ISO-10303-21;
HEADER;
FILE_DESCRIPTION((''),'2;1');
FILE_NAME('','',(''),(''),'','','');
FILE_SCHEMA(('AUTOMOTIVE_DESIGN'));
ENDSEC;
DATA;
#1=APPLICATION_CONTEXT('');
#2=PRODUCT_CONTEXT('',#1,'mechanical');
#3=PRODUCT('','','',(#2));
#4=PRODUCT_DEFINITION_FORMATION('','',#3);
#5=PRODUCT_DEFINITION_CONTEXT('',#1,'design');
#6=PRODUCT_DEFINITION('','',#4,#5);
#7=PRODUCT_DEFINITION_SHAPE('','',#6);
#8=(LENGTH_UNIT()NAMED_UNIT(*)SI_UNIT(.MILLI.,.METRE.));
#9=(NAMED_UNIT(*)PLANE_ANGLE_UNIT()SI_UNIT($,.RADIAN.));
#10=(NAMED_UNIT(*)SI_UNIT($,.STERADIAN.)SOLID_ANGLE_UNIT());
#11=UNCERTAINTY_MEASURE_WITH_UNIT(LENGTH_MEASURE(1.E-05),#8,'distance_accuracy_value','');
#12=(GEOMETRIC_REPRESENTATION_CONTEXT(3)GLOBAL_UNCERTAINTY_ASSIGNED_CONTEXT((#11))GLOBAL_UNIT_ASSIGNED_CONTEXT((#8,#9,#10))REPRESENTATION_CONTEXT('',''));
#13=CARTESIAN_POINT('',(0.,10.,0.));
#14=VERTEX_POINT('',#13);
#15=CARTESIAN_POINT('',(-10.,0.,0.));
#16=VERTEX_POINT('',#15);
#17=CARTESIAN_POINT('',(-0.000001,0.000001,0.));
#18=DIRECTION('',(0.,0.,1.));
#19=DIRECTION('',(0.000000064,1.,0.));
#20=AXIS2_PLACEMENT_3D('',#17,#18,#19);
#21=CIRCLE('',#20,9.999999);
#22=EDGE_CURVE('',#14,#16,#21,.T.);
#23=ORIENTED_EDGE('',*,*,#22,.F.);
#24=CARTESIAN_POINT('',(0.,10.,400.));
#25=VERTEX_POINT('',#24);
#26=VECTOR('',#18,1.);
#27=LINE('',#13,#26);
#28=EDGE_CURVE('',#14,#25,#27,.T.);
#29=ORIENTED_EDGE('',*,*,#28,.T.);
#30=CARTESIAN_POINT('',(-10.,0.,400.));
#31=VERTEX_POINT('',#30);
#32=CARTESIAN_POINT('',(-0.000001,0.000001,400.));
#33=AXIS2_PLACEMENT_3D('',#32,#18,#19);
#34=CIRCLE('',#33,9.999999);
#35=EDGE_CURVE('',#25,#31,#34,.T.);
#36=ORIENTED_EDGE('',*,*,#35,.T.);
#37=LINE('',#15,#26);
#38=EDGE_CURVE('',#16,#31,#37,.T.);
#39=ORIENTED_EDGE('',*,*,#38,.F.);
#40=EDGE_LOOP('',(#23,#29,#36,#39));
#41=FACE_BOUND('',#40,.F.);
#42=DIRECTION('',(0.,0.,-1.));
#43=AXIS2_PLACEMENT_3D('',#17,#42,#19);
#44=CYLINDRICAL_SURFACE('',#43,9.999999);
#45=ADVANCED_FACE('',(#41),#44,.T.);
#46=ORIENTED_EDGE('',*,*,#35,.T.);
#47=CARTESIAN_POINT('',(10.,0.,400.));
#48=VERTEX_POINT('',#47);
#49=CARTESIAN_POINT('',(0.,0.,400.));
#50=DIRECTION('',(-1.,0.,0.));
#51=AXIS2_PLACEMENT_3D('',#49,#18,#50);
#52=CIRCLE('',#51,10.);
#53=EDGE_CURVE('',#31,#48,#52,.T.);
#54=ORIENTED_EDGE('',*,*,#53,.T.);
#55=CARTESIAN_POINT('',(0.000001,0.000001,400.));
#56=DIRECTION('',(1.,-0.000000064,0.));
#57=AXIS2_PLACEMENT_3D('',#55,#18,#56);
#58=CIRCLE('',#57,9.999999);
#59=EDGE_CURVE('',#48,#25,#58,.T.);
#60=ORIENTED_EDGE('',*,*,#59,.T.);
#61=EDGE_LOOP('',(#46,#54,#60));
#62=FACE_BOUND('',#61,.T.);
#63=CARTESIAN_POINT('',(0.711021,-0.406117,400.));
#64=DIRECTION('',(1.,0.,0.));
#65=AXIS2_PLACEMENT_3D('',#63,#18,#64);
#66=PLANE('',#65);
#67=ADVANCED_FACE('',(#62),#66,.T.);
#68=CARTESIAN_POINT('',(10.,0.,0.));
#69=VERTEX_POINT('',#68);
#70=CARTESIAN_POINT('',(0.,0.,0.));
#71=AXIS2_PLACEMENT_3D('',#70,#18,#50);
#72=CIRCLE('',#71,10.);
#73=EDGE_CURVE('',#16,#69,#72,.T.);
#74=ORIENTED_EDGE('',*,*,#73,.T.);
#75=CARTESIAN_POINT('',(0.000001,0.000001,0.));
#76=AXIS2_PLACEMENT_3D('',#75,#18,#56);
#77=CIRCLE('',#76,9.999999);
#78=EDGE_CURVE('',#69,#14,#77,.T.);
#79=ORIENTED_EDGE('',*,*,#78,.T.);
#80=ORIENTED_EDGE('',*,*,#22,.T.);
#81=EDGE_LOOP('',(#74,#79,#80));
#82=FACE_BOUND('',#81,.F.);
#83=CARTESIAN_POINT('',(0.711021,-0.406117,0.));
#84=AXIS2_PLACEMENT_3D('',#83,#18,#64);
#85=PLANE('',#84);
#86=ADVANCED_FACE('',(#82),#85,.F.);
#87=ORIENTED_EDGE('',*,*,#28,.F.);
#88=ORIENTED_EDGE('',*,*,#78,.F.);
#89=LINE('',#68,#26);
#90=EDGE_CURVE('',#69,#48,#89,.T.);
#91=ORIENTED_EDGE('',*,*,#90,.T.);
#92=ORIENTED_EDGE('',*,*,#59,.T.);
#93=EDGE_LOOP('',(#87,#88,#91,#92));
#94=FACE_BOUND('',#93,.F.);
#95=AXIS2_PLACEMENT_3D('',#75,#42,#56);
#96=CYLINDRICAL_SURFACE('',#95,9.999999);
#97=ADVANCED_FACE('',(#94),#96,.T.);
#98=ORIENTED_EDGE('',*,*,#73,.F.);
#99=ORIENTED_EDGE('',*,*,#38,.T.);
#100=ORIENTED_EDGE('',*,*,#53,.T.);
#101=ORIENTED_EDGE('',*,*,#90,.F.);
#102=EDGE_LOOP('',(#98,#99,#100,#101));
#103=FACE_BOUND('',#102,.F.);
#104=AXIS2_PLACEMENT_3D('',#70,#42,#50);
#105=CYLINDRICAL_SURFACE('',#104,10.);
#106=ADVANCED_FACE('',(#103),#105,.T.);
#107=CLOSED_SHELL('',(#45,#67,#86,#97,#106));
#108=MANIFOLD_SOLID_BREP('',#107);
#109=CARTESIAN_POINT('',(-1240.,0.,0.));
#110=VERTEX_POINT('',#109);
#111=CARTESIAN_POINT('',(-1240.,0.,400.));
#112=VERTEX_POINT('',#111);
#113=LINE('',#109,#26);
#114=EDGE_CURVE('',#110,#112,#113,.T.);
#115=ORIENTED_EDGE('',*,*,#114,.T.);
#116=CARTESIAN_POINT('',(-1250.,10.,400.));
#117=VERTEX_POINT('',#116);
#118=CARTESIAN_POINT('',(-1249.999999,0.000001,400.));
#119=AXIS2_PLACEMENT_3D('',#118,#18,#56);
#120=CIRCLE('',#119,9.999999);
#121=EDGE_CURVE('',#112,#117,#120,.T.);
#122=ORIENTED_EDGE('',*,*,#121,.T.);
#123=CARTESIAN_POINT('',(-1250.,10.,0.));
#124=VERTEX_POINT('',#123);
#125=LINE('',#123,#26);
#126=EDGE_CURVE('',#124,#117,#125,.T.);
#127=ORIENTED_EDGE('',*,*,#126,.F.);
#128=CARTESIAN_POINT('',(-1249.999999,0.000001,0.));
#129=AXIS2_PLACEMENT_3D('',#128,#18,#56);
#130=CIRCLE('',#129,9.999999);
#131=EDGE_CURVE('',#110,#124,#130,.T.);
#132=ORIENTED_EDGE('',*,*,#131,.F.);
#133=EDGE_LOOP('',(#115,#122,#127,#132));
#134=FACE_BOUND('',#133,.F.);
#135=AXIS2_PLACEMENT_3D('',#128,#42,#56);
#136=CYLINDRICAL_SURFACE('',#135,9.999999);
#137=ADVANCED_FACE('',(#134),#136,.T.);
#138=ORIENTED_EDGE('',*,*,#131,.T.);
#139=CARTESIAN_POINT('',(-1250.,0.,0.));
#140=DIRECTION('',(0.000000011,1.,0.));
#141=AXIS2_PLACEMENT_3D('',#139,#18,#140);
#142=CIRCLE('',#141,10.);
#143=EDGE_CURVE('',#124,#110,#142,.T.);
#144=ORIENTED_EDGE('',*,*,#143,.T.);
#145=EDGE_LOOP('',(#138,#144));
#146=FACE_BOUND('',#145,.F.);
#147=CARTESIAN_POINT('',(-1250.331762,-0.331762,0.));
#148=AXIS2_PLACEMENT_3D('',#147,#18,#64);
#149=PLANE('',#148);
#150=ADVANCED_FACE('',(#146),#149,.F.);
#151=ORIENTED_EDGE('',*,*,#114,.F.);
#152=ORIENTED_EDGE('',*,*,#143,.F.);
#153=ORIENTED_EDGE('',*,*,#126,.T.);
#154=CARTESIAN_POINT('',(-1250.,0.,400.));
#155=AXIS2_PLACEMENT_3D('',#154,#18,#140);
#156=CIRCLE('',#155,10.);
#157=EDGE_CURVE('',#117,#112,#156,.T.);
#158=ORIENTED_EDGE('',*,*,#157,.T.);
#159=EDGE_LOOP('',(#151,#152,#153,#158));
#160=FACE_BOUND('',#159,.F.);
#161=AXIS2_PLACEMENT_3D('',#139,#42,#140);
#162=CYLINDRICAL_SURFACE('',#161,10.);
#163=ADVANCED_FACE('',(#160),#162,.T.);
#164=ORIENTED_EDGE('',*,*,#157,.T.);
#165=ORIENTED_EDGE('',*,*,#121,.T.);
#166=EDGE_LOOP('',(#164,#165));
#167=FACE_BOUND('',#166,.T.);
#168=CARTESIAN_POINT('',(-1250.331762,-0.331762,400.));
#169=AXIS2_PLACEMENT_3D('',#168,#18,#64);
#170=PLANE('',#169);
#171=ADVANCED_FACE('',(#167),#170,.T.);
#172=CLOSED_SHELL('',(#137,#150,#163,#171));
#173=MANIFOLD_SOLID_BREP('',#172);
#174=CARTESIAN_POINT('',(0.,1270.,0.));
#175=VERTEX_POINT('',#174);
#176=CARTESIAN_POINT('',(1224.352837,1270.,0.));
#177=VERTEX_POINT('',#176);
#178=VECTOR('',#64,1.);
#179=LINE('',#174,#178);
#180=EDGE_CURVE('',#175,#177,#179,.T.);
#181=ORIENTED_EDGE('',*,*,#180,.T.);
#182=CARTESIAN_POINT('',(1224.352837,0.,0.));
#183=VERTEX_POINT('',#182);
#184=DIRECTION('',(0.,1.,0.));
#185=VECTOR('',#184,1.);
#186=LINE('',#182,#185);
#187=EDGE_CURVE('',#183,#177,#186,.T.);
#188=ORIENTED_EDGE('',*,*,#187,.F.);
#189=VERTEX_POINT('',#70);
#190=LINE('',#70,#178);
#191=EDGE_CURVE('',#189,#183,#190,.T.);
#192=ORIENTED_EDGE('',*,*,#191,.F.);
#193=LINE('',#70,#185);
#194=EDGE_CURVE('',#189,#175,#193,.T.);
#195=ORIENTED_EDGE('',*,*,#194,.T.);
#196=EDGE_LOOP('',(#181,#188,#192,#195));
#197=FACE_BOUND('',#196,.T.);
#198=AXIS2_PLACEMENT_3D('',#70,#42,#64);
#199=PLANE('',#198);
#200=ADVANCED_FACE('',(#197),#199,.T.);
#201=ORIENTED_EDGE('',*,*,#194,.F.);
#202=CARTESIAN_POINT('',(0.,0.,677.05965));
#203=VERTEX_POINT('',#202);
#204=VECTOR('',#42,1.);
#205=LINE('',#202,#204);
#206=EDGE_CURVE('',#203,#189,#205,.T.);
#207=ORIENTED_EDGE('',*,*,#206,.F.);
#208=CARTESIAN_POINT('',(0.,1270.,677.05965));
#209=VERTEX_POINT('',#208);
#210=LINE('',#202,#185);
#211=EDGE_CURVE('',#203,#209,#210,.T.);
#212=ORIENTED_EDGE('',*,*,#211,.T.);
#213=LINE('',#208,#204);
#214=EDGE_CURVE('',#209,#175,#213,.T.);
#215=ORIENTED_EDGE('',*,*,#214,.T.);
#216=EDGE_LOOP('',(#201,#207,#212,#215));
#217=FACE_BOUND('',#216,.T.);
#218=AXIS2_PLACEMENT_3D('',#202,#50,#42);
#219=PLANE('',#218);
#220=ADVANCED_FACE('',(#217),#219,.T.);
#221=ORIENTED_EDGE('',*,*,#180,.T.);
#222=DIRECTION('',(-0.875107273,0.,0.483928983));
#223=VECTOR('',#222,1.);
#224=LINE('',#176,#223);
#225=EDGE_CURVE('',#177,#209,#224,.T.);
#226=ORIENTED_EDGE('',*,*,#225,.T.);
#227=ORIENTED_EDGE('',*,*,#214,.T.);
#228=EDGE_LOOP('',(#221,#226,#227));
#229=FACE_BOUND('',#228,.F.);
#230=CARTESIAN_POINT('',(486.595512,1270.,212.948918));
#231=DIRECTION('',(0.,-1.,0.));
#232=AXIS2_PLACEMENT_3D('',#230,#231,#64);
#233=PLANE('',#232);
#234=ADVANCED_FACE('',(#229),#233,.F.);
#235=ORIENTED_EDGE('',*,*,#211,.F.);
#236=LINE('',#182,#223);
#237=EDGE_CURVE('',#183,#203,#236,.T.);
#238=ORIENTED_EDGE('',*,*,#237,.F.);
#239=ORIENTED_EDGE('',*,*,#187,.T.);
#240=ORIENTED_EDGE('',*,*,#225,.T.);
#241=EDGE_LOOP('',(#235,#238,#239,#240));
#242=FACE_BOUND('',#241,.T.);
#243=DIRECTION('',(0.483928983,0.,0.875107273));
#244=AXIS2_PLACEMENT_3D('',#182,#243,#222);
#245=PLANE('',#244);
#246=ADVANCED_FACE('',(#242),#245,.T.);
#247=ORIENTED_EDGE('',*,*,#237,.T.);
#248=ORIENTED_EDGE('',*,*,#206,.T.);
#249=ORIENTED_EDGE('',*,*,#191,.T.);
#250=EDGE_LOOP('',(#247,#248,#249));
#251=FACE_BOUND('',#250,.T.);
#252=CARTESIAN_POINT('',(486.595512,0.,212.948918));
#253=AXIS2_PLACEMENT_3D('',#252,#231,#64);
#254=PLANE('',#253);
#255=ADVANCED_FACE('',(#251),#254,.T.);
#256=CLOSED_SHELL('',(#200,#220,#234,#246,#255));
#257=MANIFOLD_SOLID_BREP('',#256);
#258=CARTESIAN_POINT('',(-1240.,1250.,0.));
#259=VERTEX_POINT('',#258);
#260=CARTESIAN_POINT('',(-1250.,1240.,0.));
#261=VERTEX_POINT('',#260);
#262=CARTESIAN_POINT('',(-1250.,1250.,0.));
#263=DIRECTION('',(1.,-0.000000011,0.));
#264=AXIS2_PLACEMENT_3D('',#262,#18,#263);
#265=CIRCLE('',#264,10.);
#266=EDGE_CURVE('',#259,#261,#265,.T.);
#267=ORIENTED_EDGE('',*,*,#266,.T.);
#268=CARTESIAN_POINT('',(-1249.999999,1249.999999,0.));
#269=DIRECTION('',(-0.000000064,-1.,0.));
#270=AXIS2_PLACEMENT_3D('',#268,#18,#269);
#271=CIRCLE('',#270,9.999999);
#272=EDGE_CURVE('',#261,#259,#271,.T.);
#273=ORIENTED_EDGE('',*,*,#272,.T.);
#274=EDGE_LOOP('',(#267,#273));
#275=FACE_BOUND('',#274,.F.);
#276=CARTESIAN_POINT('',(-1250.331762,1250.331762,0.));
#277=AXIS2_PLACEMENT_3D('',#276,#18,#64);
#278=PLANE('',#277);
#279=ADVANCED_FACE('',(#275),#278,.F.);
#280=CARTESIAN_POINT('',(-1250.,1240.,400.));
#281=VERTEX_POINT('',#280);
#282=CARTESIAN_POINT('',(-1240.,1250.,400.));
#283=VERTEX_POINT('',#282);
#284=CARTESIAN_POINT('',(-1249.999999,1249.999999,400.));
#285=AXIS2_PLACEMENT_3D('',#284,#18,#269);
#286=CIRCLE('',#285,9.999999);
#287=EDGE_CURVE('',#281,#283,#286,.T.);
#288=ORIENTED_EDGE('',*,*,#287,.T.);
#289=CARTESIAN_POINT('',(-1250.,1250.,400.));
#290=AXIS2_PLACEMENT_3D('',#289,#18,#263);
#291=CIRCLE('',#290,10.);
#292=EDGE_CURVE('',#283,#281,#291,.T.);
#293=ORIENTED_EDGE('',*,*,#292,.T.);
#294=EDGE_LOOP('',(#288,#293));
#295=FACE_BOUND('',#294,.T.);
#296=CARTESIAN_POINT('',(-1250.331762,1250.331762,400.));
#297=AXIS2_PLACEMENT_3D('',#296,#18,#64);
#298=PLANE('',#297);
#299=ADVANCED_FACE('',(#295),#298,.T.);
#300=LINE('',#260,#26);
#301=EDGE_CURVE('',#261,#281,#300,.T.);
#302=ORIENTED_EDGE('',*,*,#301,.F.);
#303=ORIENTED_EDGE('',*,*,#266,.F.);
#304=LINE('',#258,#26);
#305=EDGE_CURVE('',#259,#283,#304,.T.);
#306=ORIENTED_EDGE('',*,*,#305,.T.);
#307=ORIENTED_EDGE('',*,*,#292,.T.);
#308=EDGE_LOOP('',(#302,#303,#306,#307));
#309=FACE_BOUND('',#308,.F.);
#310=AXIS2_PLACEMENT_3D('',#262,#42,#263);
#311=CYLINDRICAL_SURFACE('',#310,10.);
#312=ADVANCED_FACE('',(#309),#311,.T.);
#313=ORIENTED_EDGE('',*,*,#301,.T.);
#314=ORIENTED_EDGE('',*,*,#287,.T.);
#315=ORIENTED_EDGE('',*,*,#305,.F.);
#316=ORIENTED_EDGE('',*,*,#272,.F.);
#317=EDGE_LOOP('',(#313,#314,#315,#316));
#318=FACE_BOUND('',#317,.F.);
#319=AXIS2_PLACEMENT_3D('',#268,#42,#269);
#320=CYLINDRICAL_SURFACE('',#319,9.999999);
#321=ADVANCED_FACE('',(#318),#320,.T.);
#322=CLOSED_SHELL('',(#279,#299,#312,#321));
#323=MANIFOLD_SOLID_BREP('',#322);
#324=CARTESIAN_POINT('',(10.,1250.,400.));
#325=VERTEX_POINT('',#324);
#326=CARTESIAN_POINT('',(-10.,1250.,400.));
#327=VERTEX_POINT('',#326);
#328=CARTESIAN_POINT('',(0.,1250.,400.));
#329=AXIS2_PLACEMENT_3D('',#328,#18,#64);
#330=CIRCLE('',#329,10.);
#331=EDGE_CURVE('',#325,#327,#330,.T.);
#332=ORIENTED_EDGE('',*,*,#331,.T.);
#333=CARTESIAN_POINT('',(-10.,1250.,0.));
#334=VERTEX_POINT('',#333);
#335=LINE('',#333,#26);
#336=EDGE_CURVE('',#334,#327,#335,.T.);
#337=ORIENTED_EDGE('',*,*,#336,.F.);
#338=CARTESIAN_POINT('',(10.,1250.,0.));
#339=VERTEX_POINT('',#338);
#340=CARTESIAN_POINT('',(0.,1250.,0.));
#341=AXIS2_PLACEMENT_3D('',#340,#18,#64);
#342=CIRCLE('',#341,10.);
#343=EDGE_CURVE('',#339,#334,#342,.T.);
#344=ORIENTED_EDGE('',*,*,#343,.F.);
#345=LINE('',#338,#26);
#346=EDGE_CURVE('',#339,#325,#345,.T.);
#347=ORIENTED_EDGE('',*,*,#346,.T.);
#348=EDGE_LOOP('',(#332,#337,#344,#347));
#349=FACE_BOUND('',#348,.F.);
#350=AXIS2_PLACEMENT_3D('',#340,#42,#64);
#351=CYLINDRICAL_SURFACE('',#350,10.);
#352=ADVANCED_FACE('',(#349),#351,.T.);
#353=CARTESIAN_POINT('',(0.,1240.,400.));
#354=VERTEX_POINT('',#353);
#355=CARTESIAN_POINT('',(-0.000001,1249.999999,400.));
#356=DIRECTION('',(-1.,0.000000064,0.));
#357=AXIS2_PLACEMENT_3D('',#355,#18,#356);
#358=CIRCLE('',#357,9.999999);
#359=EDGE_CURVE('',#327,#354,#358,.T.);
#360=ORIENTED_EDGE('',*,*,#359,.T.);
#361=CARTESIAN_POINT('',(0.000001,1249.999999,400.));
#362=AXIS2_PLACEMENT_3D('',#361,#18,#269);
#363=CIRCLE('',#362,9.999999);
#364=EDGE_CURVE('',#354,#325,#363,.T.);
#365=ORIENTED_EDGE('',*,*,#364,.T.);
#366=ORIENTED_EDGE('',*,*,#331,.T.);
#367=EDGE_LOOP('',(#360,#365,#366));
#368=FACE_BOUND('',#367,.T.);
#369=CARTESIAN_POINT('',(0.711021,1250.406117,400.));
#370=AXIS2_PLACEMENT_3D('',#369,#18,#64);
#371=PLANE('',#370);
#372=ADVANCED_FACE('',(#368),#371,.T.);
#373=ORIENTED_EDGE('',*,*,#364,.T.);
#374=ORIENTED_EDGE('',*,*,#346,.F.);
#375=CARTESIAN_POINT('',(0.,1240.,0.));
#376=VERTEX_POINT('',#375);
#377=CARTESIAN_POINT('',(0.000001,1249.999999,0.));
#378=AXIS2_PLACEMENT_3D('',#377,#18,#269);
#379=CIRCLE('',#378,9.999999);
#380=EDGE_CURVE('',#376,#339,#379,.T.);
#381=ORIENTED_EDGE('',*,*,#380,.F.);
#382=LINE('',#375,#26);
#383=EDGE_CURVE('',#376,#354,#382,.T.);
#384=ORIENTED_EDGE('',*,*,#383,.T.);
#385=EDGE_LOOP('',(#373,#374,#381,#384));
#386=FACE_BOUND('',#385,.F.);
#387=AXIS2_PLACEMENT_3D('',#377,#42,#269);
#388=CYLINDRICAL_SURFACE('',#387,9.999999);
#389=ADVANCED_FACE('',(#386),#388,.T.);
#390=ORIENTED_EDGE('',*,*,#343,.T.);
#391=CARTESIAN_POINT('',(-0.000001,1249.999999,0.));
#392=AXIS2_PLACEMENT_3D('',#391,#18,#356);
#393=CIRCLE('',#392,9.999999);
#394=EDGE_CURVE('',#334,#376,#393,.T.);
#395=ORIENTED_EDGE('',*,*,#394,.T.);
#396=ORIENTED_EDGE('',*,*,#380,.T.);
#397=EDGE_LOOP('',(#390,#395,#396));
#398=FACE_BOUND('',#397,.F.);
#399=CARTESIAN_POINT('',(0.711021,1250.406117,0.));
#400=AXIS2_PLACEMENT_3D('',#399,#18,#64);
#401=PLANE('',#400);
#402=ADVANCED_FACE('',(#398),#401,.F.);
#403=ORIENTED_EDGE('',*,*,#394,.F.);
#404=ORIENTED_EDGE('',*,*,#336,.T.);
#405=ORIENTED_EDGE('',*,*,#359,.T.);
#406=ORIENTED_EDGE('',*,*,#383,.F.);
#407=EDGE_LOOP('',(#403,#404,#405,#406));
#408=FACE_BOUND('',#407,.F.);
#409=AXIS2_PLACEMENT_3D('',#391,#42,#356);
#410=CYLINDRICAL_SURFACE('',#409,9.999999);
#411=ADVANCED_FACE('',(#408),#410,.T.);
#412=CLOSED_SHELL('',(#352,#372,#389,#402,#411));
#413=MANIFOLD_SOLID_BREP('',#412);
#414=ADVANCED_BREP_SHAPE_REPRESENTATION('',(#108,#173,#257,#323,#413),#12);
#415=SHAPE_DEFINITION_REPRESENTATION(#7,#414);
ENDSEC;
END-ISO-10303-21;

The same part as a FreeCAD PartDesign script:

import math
import FreeCAD as App
import Part
import Sketcher

V = App.Vector


def add_polygon(sketch, points):
    """Adds a closed chain of lines whose ends are joined by coincident constraints."""
    first, n = sketch.GeometryCount, len(points)
    for a, b in zip(points, points[1:] + points[:1]):
        sketch.addGeometry(Part.LineSegment(App.Vector(*a, 0), App.Vector(*b, 0)), False)
    for i in range(n):
        sketch.addConstraint(Sketcher.Constraint("Coincident", first + i, 2, first + (i + 1) % n, 1))

doc = App.newDocument("Part")
params = doc.addObject("Spreadsheet::Sheet", "Params")
for row, (alias, value) in enumerate([
    ("sketch1_radius", "9.999999 mm"),
    ("pad1_length", "400 mm"),
    ("pad2_length", "1270 mm"),
], start=1):
    params.set(f"A{row}", alias)
    params.set(f"B{row}", "=" + value)
    params.setAlias(f"B{row}", alias)

body = doc.addObject("PartDesign::Body", "Body")
body.AllowCompound = True

# Sketch on XY plane
sketch1 = body.newObject("Sketcher::SketchObject", "Sketch")
sketch1.AttachmentSupport = (doc.getObject("XY_Plane"), [""])
sketch1.MapMode = "FlatFace"
sketch1.addGeometry([
    Part.ArcOfCircle(Part.Circle(V(0.000001, 1249.999999, 0), V(0, 0, 1), 9.999999), math.radians(-90.000004), math.radians(0.000004)),  # 0
    Part.ArcOfCircle(Part.Circle(V(0, 1250, 0), V(0, 0, 1), 10), math.radians(0), math.radians(180)),  # 1
    Part.ArcOfCircle(Part.Circle(V(-0.000001, 1249.999999, 0), V(0, 0, 1), 9.999999), math.radians(179.999996), math.radians(270.000004)),  # 2
    Part.ArcOfCircle(Part.Circle(V(-1250, 1250, 0), V(0, 0, 1), 10), math.radians(-0.000001), math.radians(270.000001)),  # 3
    Part.ArcOfCircle(Part.Circle(V(-1249.999999, 1249.999999, 0), V(0, 0, 1), 9.999999), math.radians(-90.000004), math.radians(0.000004)),  # 4
    Part.ArcOfCircle(Part.Circle(V(-1250, 0, 0), V(0, 0, 1), 10), math.radians(89.999999), math.radians(360.000001)),  # 5
    Part.ArcOfCircle(Part.Circle(V(-1249.999999, 0.000001, 0), V(0, 0, 1), 9.999999), math.radians(-0.000004), math.radians(90.000004)),  # 6
    Part.ArcOfCircle(Part.Circle(V(0, 0, 0), V(0, 0, 1), 10), math.radians(180), math.radians(360)),  # 7
    Part.ArcOfCircle(Part.Circle(V(0.000001, 0.000001, 0), V(0, 0, 1), 9.999999), math.radians(-0.000004), math.radians(90.000004)),  # 8
    Part.ArcOfCircle(Part.Circle(V(-0.000001, 0.000001, 0), V(0, 0, 1), 9.999999), math.radians(89.999996), math.radians(180.000004)),  # 9
], False)
sketch1.addConstraint([
    Sketcher.Constraint("Tangent", 0, 2, 1, 1),
    Sketcher.Constraint("Tangent", 1, 2, 2, 1),
    Sketcher.Constraint("Tangent", 2, 2, 0, 1),
    Sketcher.Constraint("Tangent", 3, 1, 4, 2),
    Sketcher.Constraint("Coincident", 4, 1, 3, 2),
    Sketcher.Constraint("Tangent", 5, 1, 6, 2),
    Sketcher.Constraint("Coincident", 6, 1, 5, 2),
    Sketcher.Constraint("Tangent", 7, 2, 8, 1),
    Sketcher.Constraint("Tangent", 8, 2, 9, 1),
    Sketcher.Constraint("Tangent", 9, 2, 7, 1),
    Sketcher.Constraint("Coincident", 7, 3, -1, 1),
    Sketcher.Constraint("Equal", 2, 3),
    Sketcher.Constraint("Equal", 4, 5),
    Sketcher.Constraint("Equal", 6, 7),
    Sketcher.Constraint("Symmetric", 0, 2, 1, 2, -2),
    Sketcher.Constraint("PointOnObject", 5, 3, -1),
    Sketcher.Constraint("PointOnObject", 2, 2, -2),
    Sketcher.Constraint("PointOnObject", 6, 1, -1),
    Sketcher.Constraint("PointOnObject", 7, 2, -1),
    Sketcher.Constraint("PointOnObject", 8, 2, -2),
    Sketcher.Constraint("PointOnObject", 9, 2, -1),
    Sketcher.Constraint("Horizontal", 2, 3, 3, 3),
    Sketcher.Constraint("Horizontal", 4, 3, 0, 2),
    Sketcher.Constraint("Horizontal", 1, 2, 3, 1),
    Sketcher.Constraint("Vertical", 4, 3, 5, 3),
    Sketcher.Constraint("Vertical", 6, 3, 4, 1),
    Sketcher.Constraint("Vertical", 4, 1, 5, 1),
    Sketcher.Constraint("Radius", 0, 9.999999),
    Sketcher.Constraint("DistanceY", -1, 1, 0, 3, 1249.999999),
    Sketcher.Constraint("DistanceX", 3, 3, -1, 1, 1250.0),
])
sketch1.setExpression("Constraints[27]", "Params.sketch1_radius")
pad1 = body.newObject("PartDesign::Pad", "Pad")
pad1.Profile = sketch1
pad1.setExpression("Length", "Params.pad1_length")
body2 = doc.addObject("PartDesign::Body", "Body001")

# Sketch on XZ plane
sketch2 = body2.newObject("Sketcher::SketchObject", "Sketch001")
sketch2.AttachmentSupport = (doc.getObject("XZ_Plane001"), [""])
sketch2.MapMode = "FlatFace"
add_polygon(sketch2, [(0, 0), (1224.352837, 0), (0, 677.05965)])  # lines 0-2
sketch2.addConstraint([
    Sketcher.Constraint("Horizontal", 0),
    Sketcher.Constraint("Vertical", 2),
    Sketcher.Constraint("Coincident", 2, 2, -1, 1),
    Sketcher.Constraint("DistanceY", 2, 2, 2, 1, 677.05965),
    Sketcher.Constraint("Distance", 1, 1399.08886),
])
pad2 = body2.newObject("PartDesign::Pad", "Pad001")
pad2.Profile = sketch2
pad2.setExpression("Length", "Params.pad2_length")
pad2.Reversed = True

doc.recompute()
